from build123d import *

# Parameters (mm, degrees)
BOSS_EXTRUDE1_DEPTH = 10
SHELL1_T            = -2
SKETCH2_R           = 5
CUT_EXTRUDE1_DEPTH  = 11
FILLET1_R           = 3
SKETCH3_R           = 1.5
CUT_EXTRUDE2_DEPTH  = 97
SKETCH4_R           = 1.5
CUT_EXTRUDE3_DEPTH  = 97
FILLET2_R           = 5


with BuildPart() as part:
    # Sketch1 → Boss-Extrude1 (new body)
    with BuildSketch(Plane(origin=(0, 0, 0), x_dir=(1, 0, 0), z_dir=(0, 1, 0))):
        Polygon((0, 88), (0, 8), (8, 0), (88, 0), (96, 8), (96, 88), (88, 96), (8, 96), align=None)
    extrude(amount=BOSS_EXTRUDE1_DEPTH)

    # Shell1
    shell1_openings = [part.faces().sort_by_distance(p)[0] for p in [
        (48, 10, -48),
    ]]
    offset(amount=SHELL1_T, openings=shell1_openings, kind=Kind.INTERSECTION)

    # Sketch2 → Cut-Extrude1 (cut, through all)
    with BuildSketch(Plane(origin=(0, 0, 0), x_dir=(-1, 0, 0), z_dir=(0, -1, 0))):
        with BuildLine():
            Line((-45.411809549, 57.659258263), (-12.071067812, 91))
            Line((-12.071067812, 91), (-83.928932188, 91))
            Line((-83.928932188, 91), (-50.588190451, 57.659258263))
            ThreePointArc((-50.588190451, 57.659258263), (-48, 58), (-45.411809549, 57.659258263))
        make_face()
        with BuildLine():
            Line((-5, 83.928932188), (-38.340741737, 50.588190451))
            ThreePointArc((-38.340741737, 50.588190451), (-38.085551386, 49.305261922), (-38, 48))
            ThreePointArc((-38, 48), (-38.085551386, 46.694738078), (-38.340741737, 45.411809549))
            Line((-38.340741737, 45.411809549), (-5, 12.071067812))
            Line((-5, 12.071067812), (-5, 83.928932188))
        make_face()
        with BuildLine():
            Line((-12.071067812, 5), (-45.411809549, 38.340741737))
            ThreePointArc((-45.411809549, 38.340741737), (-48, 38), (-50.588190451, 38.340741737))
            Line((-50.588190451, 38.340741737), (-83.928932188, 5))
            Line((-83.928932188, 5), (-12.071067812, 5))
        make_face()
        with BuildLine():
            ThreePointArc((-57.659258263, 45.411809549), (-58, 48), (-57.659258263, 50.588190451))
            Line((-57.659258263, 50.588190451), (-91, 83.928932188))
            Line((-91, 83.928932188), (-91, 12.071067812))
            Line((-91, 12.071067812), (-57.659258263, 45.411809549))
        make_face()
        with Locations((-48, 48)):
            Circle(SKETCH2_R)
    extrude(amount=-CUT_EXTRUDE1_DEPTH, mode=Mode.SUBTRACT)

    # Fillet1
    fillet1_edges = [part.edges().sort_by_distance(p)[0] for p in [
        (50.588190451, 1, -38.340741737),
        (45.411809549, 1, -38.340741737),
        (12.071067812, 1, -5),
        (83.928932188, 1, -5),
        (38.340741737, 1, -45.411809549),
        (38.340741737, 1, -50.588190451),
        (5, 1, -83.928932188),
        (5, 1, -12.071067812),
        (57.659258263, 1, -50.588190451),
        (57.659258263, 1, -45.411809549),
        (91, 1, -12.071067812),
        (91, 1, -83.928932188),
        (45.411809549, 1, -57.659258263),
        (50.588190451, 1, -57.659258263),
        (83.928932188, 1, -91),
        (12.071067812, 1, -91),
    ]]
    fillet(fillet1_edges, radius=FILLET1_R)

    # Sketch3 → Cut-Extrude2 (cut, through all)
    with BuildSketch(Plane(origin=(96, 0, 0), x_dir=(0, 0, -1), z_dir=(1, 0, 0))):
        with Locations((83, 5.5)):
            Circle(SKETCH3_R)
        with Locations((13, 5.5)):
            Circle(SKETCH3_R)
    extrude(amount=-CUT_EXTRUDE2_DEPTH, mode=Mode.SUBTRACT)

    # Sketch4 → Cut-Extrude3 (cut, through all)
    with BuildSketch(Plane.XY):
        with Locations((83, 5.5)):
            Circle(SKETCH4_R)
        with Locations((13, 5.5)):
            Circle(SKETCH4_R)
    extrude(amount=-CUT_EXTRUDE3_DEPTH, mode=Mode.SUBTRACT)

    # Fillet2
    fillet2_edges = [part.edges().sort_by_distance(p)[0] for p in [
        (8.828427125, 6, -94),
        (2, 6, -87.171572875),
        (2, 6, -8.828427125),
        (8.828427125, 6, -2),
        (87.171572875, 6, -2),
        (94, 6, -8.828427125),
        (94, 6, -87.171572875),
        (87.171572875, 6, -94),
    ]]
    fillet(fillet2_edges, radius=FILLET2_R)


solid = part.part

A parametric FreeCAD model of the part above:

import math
import FreeCAD as App
import Part
import Sketcher

V = App.Vector


def edges_at(feature, points):
    """Names of the edges that pass closest to the given points."""
    edges = feature.Shape.Edges
    near = lambda p: min(range(len(edges)), key=lambda i: edges[i].distToShape(Part.Vertex(*p))[0])
    return sorted({f"Edge{near(p) + 1}" for p in points})


def faces_at(feature, points):
    """Names of the faces that lie closest to the given points."""
    faces = feature.Shape.Faces
    near = lambda p: min(range(len(faces)), key=lambda i: faces[i].distToShape(Part.Vertex(*p))[0])
    return sorted({f"Face{near(p) + 1}" for p in points})


def add_polygon(sketch, points):
    """Adds a closed chain of lines whose ends are joined by coincident constraints."""
    first, n = sketch.GeometryCount, len(points)
    for a, b in zip(points, points[1:] + points[:1]):
        sketch.addGeometry(Part.LineSegment(App.Vector(*a, 0), App.Vector(*b, 0)), False)
    for i in range(n):
        sketch.addConstraint(Sketcher.Constraint("Coincident", first + i, 2, first + (i + 1) % n, 1))

doc = App.newDocument("Part")
body = doc.addObject("PartDesign::Body", "Body")

sketch1 = body.newObject("Sketcher::SketchObject", "Sketch")
sketch1.AttachmentSupport = (doc.getObject("XZ_Plane"), [""])
sketch1.MapMode = "FlatFace"
add_polygon(sketch1, [(0, -88), (0, -8), (8, 0), (88, 0), (96, -8), (96, -88), (88, -96), (8, -96)])
sketch1.addConstraint(Sketcher.Constraint("Vertical", 0))
sketch1.addConstraint(Sketcher.Constraint("Horizontal", 2))
sketch1.addConstraint(Sketcher.Constraint("Vertical", 4))
sketch1.addConstraint(Sketcher.Constraint("Horizontal", 6))
sketch1.addConstraint(Sketcher.Constraint("PointOnObject", 0, 2, -2))
sketch1.addConstraint(Sketcher.Constraint("PointOnObject", 1, 2, -1))
sketch1.addConstraint(Sketcher.Constraint("Perpendicular", 1, 3))
sketch1.addConstraint(Sketcher.Constraint("Perpendicular", 3, 5))
sketch1.addConstraint(Sketcher.Constraint("Perpendicular", 5, 7))
sketch1.addConstraint(Sketcher.Constraint("Horizontal", 0, 2, 3, 2))
sketch1.addConstraint(Sketcher.Constraint("Horizontal", 4, 2, 7, 2))
sketch1.addConstraint(Sketcher.Constraint("Vertical", 2, 2, 5, 2))
sketch1.addConstraint(Sketcher.Constraint("Vertical", 1, 2, 6, 2))
sketch1.addConstraint(Sketcher.Constraint("Equal", 6, 0))
sketch1.addConstraint(Sketcher.Constraint("DistanceX", 2, 1, 2, 2, 80.0))
sketch1.addConstraint(Sketcher.Constraint("DistanceY", 0, 2, -1, 1, 8.0))
pad1 = body.newObject("PartDesign::Pad", "Pad")
pad1.Profile = sketch1
pad1.Length = 10
pad1.Reversed = True
doc.recompute()

thickness = body.newObject("PartDesign::Thickness", "Thickness")
thickness.Base = (pad1, faces_at(pad1, [(48, 10, -48)]))
thickness.Value = 2
thickness.Reversed = True
thickness.Join = "Intersection"

sketch2 = body.newObject("Sketcher::SketchObject", "Sketch001")
sketch2.AttachmentSupport = (doc.getObject("XZ_Plane"), [""])
sketch2.MapMode = "FlatFace"
sketch2.addGeometry(Part.LineSegment(V(45.4, -57.7, 0), V(12.1, -91, 0)), False)
sketch2.addGeometry(Part.LineSegment(V(12.1, -91, 0), V(83.9, -91, 0)), False)
sketch2.addGeometry(Part.LineSegment(V(83.9, -91, 0), V(50.6, -57.7, 0)), False)
sketch2.addGeometry(Part.ArcOfCircle(Part.Circle(V(48, -48, 0), V(0, 0, 1), 10), math.radians(-105), math.radians(-75)), False)
sketch2.addGeometry(Part.LineSegment(V(5, -83.9, 0), V(38.3, -50.6, 0)), False)
sketch2.addGeometry(Part.ArcOfCircle(Part.Circle(V(48, -48, 0), V(0, 0, 1), 10), math.radians(180), math.radians(195)), False)
sketch2.addGeometry(Part.ArcOfCircle(Part.Circle(V(48, -48, 0), V(0, 0, 1), 10), math.radians(165), math.radians(180)), False)
sketch2.addGeometry(Part.LineSegment(V(38.3, -45.4, 0), V(5, -12.1, 0)), False)
sketch2.addGeometry(Part.LineSegment(V(5, -12.1, 0), V(5, -83.9, 0)), False)
sketch2.addGeometry(Part.LineSegment(V(12.1, -5, 0), V(45.4, -38.3, 0)), False)
sketch2.addGeometry(Part.ArcOfCircle(Part.Circle(V(48, -48, 0), V(0, 0, 1), 10), math.radians(75), math.radians(105)), False)
sketch2.addGeometry(Part.LineSegment(V(50.6, -38.3, 0), V(83.9, -5, 0)), False)
sketch2.addGeometry(Part.LineSegment(V(83.9, -5, 0), V(12.1, -5, 0)), False)
sketch2.addGeometry(Part.ArcOfCircle(Part.Circle(V(48, -48, 0), V(0, 0, 1), 10), math.radians(-15), math.radians(15)), False)
sketch2.addGeometry(Part.LineSegment(V(57.7, -50.6, 0), V(91, -83.9, 0)), False)
sketch2.addGeometry(Part.LineSegment(V(91, -83.9, 0), V(91, -12.1, 0)), False)
sketch2.addGeometry(Part.LineSegment(V(91, -12.1, 0), V(57.7, -45.4, 0)), False)
sketch2.addGeometry(Part.Circle(V(48, -48, 0), V(0, 0, 1), 5), False)
sketch2.addConstraint(Sketcher.Constraint("Coincident", 0, 2, 1, 1))
sketch2.addConstraint(Sketcher.Constraint("Coincident", 1, 2, 2, 1))
sketch2.addConstraint(Sketcher.Constraint("Coincident", 2, 2, 3, 2))
sketch2.addConstraint(Sketcher.Constraint("Coincident", 3, 1, 0, 1))
sketch2.addConstraint(Sketcher.Constraint("Coincident", 4, 2, 5, 2))
sketch2.addConstraint(Sketcher.Constraint("Tangent", 5, 1, 6, 2))
sketch2.addConstraint(Sketcher.Constraint("Coincident", 6, 1, 7, 1))
sketch2.addConstraint(Sketcher.Constraint("Coincident", 7, 2, 8, 1))
sketch2.addConstraint(Sketcher.Constraint("Coincident", 8, 2, 4, 1))
sketch2.addConstraint(Sketcher.Constraint("Coincident", 9, 2, 10, 2))
sketch2.addConstraint(Sketcher.Constraint("Coincident", 10, 1, 11, 1))
sketch2.addConstraint(Sketcher.Constraint("Coincident", 11, 2, 12, 1))
sketch2.addConstraint(Sketcher.Constraint("Coincident", 12, 2, 9, 1))
sketch2.addConstraint(Sketcher.Constraint("Coincident", 13, 1, 14, 1))
sketch2.addConstraint(Sketcher.Constraint("Coincident", 14, 2, 15, 1))
sketch2.addConstraint(Sketcher.Constraint("Coincident", 15, 2, 16, 1))
sketch2.addConstraint(Sketcher.Constraint("Coincident", 16, 2, 13, 2))
sketch2.addConstraint(Sketcher.Constraint("Horizontal", 1))
sketch2.addConstraint(Sketcher.Constraint("Vertical", 8))
sketch2.addConstraint(Sketcher.Constraint("Horizontal", 12))
sketch2.addConstraint(Sketcher.Constraint("Vertical", 15))
sketch2.addConstraint(Sketcher.Constraint("Coincident", 5, 3, 3, 3))
sketch2.addConstraint(Sketcher.Constraint("Coincident", 10, 3, 3, 3))
sketch2.addConstraint(Sketcher.Constraint("Coincident", 13, 3, 3, 3))
sketch2.addConstraint(Sketcher.Constraint("Coincident", 17, 3, 3, 3))
sketch2.addConstraint(Sketcher.Constraint("Equal", 3, 5))
sketch2.addConstraint(Sketcher.Constraint("Equal", 5, 6))
sketch2.addConstraint(Sketcher.Constraint("Equal", 6, 10))
sketch2.addConstraint(Sketcher.Constraint("Equal", 10, 13))
sketch2.addConstraint(Sketcher.Constraint("Perpendicular", 0, 2))
sketch2.addConstraint(Sketcher.Constraint("Perpendicular", 2, 4))
sketch2.addConstraint(Sketcher.Constraint("Perpendicular", 4, 7))
sketch2.addConstraint(Sketcher.Constraint("Parallel", 7, 9))
sketch2.addConstraint(Sketcher.Constraint("Perpendicular", 9, 11))
sketch2.addConstraint(Sketcher.Constraint("Perpendicular", 11, 14))
sketch2.addConstraint(Sketcher.Constraint("Perpendicular", 14, 16))
sketch2.addConstraint(Sketcher.Constraint("Horizontal", 2, 2, 3, 1))
sketch2.addConstraint(Sketcher.Constraint("Horizontal", 17, 3, 5, 1))
sketch2.addConstraint(Sketcher.Constraint("Horizontal", 9, 2, 10, 1))
sketch2.addConstraint(Sketcher.Constraint("Horizontal", 4, 2, 13, 1))
sketch2.addConstraint(Sketcher.Constraint("Horizontal", 8, 2, 14, 2))
sketch2.addConstraint(Sketcher.Constraint("Horizontal", 7, 2, 15, 2))
sketch2.addConstraint(Sketcher.Constraint("Horizontal", 6, 1, 16, 2))
sketch2.addConstraint(Sketcher.Constraint("Vertical", 4, 2, 6, 1))
sketch2.addConstraint(Sketcher.Constraint("Vertical", 3, 1, 9, 2))
sketch2.addConstraint(Sketcher.Constraint("Vertical", 1, 2, 11, 2))
sketch2.addConstraint(Sketcher.Constraint("Equal", 12, 8))
sketch2.addConstraint(Sketcher.Constraint("Equal", 2, 4))
sketch2.addConstraint(Sketcher.Constraint("Diameter", 17, 10.0))
sketch2.addConstraint(Sketcher.Constraint("Radius", 3, 10.0))
sketch2.addConstraint(Sketcher.Constraint("DistanceX", -1, 1, 3, 3, 48.0))
sketch2.addConstraint(Sketcher.Constraint("DistanceY", 3, 3, -1, 1, 48.0))
sketch2.addConstraint(Sketcher.Constraint("DistanceY", 0, 2, -1, 1, 91.0))
sketch2.addConstraint(Sketcher.Constraint("Distance", 0, 47.150929))
pocket1 = body.newObject("PartDesign::Pocket", "Pocket")
pocket1.Profile = sketch2
pocket1.Type = "ThroughAll"
doc.recompute()

fillet = body.newObject("PartDesign::Fillet", "Fillet")
fillet.Base = (pocket1, edges_at(pocket1, [
    (50.588, 1, -38.341),
    (45.412, 1, -38.341),
    (12.071, 1, -5),
    (83.929, 1, -5),
    (38.341, 1, -45.412),
    (38.341, 1, -50.588),
    (5, 1, -83.929),
    (5, 1, -12.071),
    (57.659, 1, -50.588),
    (57.659, 1, -45.412),
    (91, 1, -12.071),
    (91, 1, -83.929),
    (45.412, 1, -57.659),
    (50.588, 1, -57.659),
    (83.929, 1, -91),
    (12.071, 1, -91),
]))
fillet.Radius = 3

sketch3 = body.newObject("Sketcher::SketchObject", "Sketch002")
sketch3.AttachmentSupport = (doc.getObject("YZ_Plane"), [""])
sketch3.MapMode = "FlatFace"
sketch3.AttachmentOffset = App.Placement(V(0, 0, 96), App.Rotation())
sketch3.addGeometry(Part.Circle(V(5.5, -83, 0), V(0, 0, 1), 1.5), False)
sketch3.addGeometry(Part.Circle(V(5.5, -13, 0), V(0, 0, 1), 1.5), False)
sketch3.addConstraint(Sketcher.Constraint("Equal", 0, 1))
sketch3.addConstraint(Sketcher.Constraint("Vertical", 0, 3, 1, 3))
sketch3.addConstraint(Sketcher.Constraint("Diameter", 0, 3.0))
sketch3.addConstraint(Sketcher.Constraint("DistanceY", 0, 3, -1, 1, 83.0))
sketch3.addConstraint(Sketcher.Constraint("DistanceY", 1, 3, -1, 1, 13.0))
sketch3.addConstraint(Sketcher.Constraint("DistanceX", -1, 1, 0, 3, 5.5))
pocket2 = body.newObject("PartDesign::Pocket", "Pocket001")
pocket2.Profile = sketch3
pocket2.Type = "ThroughAll"

sketch4 = body.newObject("Sketcher::SketchObject", "Sketch003")
sketch4.AttachmentSupport = (doc.getObject("XY_Plane"), [""])
sketch4.MapMode = "FlatFace"
sketch4.addGeometry(Part.Circle(V(83, 5.5, 0), V(0, 0, 1), 1.5), False)
sketch4.addGeometry(Part.Circle(V(13, 5.5, 0), V(0, 0, 1), 1.5), False)
sketch4.addConstraint(Sketcher.Constraint("Equal", 0, 1))
sketch4.addConstraint(Sketcher.Constraint("Horizontal", 0, 3, 1, 3))
sketch4.addConstraint(Sketcher.Constraint("Diameter", 0, 3.0))
sketch4.addConstraint(Sketcher.Constraint("DistanceX", -1, 1, 0, 3, 83.0))
sketch4.addConstraint(Sketcher.Constraint("DistanceX", -1, 1, 1, 3, 13.0))
sketch4.addConstraint(Sketcher.Constraint("DistanceY", -1, 1, 0, 3, 5.5))
pocket3 = body.newObject("PartDesign::Pocket", "Pocket002")
pocket3.Profile = sketch4
pocket3.Type = "ThroughAll"
doc.recompute()

fillet2 = body.newObject("PartDesign::Fillet", "Fillet001")
fillet2.Base = (pocket3, edges_at(pocket3, [
    (8.828, 6, -94),
    (2, 6, -87.172),
    (2, 6, -8.828),
    (8.828, 6, -2),
    (87.172, 6, -2),
    (94, 6, -8.828),
    (94, 6, -87.172),
    (87.172, 6, -94),
]))
fillet2.Radius = 5

doc.recompute()
